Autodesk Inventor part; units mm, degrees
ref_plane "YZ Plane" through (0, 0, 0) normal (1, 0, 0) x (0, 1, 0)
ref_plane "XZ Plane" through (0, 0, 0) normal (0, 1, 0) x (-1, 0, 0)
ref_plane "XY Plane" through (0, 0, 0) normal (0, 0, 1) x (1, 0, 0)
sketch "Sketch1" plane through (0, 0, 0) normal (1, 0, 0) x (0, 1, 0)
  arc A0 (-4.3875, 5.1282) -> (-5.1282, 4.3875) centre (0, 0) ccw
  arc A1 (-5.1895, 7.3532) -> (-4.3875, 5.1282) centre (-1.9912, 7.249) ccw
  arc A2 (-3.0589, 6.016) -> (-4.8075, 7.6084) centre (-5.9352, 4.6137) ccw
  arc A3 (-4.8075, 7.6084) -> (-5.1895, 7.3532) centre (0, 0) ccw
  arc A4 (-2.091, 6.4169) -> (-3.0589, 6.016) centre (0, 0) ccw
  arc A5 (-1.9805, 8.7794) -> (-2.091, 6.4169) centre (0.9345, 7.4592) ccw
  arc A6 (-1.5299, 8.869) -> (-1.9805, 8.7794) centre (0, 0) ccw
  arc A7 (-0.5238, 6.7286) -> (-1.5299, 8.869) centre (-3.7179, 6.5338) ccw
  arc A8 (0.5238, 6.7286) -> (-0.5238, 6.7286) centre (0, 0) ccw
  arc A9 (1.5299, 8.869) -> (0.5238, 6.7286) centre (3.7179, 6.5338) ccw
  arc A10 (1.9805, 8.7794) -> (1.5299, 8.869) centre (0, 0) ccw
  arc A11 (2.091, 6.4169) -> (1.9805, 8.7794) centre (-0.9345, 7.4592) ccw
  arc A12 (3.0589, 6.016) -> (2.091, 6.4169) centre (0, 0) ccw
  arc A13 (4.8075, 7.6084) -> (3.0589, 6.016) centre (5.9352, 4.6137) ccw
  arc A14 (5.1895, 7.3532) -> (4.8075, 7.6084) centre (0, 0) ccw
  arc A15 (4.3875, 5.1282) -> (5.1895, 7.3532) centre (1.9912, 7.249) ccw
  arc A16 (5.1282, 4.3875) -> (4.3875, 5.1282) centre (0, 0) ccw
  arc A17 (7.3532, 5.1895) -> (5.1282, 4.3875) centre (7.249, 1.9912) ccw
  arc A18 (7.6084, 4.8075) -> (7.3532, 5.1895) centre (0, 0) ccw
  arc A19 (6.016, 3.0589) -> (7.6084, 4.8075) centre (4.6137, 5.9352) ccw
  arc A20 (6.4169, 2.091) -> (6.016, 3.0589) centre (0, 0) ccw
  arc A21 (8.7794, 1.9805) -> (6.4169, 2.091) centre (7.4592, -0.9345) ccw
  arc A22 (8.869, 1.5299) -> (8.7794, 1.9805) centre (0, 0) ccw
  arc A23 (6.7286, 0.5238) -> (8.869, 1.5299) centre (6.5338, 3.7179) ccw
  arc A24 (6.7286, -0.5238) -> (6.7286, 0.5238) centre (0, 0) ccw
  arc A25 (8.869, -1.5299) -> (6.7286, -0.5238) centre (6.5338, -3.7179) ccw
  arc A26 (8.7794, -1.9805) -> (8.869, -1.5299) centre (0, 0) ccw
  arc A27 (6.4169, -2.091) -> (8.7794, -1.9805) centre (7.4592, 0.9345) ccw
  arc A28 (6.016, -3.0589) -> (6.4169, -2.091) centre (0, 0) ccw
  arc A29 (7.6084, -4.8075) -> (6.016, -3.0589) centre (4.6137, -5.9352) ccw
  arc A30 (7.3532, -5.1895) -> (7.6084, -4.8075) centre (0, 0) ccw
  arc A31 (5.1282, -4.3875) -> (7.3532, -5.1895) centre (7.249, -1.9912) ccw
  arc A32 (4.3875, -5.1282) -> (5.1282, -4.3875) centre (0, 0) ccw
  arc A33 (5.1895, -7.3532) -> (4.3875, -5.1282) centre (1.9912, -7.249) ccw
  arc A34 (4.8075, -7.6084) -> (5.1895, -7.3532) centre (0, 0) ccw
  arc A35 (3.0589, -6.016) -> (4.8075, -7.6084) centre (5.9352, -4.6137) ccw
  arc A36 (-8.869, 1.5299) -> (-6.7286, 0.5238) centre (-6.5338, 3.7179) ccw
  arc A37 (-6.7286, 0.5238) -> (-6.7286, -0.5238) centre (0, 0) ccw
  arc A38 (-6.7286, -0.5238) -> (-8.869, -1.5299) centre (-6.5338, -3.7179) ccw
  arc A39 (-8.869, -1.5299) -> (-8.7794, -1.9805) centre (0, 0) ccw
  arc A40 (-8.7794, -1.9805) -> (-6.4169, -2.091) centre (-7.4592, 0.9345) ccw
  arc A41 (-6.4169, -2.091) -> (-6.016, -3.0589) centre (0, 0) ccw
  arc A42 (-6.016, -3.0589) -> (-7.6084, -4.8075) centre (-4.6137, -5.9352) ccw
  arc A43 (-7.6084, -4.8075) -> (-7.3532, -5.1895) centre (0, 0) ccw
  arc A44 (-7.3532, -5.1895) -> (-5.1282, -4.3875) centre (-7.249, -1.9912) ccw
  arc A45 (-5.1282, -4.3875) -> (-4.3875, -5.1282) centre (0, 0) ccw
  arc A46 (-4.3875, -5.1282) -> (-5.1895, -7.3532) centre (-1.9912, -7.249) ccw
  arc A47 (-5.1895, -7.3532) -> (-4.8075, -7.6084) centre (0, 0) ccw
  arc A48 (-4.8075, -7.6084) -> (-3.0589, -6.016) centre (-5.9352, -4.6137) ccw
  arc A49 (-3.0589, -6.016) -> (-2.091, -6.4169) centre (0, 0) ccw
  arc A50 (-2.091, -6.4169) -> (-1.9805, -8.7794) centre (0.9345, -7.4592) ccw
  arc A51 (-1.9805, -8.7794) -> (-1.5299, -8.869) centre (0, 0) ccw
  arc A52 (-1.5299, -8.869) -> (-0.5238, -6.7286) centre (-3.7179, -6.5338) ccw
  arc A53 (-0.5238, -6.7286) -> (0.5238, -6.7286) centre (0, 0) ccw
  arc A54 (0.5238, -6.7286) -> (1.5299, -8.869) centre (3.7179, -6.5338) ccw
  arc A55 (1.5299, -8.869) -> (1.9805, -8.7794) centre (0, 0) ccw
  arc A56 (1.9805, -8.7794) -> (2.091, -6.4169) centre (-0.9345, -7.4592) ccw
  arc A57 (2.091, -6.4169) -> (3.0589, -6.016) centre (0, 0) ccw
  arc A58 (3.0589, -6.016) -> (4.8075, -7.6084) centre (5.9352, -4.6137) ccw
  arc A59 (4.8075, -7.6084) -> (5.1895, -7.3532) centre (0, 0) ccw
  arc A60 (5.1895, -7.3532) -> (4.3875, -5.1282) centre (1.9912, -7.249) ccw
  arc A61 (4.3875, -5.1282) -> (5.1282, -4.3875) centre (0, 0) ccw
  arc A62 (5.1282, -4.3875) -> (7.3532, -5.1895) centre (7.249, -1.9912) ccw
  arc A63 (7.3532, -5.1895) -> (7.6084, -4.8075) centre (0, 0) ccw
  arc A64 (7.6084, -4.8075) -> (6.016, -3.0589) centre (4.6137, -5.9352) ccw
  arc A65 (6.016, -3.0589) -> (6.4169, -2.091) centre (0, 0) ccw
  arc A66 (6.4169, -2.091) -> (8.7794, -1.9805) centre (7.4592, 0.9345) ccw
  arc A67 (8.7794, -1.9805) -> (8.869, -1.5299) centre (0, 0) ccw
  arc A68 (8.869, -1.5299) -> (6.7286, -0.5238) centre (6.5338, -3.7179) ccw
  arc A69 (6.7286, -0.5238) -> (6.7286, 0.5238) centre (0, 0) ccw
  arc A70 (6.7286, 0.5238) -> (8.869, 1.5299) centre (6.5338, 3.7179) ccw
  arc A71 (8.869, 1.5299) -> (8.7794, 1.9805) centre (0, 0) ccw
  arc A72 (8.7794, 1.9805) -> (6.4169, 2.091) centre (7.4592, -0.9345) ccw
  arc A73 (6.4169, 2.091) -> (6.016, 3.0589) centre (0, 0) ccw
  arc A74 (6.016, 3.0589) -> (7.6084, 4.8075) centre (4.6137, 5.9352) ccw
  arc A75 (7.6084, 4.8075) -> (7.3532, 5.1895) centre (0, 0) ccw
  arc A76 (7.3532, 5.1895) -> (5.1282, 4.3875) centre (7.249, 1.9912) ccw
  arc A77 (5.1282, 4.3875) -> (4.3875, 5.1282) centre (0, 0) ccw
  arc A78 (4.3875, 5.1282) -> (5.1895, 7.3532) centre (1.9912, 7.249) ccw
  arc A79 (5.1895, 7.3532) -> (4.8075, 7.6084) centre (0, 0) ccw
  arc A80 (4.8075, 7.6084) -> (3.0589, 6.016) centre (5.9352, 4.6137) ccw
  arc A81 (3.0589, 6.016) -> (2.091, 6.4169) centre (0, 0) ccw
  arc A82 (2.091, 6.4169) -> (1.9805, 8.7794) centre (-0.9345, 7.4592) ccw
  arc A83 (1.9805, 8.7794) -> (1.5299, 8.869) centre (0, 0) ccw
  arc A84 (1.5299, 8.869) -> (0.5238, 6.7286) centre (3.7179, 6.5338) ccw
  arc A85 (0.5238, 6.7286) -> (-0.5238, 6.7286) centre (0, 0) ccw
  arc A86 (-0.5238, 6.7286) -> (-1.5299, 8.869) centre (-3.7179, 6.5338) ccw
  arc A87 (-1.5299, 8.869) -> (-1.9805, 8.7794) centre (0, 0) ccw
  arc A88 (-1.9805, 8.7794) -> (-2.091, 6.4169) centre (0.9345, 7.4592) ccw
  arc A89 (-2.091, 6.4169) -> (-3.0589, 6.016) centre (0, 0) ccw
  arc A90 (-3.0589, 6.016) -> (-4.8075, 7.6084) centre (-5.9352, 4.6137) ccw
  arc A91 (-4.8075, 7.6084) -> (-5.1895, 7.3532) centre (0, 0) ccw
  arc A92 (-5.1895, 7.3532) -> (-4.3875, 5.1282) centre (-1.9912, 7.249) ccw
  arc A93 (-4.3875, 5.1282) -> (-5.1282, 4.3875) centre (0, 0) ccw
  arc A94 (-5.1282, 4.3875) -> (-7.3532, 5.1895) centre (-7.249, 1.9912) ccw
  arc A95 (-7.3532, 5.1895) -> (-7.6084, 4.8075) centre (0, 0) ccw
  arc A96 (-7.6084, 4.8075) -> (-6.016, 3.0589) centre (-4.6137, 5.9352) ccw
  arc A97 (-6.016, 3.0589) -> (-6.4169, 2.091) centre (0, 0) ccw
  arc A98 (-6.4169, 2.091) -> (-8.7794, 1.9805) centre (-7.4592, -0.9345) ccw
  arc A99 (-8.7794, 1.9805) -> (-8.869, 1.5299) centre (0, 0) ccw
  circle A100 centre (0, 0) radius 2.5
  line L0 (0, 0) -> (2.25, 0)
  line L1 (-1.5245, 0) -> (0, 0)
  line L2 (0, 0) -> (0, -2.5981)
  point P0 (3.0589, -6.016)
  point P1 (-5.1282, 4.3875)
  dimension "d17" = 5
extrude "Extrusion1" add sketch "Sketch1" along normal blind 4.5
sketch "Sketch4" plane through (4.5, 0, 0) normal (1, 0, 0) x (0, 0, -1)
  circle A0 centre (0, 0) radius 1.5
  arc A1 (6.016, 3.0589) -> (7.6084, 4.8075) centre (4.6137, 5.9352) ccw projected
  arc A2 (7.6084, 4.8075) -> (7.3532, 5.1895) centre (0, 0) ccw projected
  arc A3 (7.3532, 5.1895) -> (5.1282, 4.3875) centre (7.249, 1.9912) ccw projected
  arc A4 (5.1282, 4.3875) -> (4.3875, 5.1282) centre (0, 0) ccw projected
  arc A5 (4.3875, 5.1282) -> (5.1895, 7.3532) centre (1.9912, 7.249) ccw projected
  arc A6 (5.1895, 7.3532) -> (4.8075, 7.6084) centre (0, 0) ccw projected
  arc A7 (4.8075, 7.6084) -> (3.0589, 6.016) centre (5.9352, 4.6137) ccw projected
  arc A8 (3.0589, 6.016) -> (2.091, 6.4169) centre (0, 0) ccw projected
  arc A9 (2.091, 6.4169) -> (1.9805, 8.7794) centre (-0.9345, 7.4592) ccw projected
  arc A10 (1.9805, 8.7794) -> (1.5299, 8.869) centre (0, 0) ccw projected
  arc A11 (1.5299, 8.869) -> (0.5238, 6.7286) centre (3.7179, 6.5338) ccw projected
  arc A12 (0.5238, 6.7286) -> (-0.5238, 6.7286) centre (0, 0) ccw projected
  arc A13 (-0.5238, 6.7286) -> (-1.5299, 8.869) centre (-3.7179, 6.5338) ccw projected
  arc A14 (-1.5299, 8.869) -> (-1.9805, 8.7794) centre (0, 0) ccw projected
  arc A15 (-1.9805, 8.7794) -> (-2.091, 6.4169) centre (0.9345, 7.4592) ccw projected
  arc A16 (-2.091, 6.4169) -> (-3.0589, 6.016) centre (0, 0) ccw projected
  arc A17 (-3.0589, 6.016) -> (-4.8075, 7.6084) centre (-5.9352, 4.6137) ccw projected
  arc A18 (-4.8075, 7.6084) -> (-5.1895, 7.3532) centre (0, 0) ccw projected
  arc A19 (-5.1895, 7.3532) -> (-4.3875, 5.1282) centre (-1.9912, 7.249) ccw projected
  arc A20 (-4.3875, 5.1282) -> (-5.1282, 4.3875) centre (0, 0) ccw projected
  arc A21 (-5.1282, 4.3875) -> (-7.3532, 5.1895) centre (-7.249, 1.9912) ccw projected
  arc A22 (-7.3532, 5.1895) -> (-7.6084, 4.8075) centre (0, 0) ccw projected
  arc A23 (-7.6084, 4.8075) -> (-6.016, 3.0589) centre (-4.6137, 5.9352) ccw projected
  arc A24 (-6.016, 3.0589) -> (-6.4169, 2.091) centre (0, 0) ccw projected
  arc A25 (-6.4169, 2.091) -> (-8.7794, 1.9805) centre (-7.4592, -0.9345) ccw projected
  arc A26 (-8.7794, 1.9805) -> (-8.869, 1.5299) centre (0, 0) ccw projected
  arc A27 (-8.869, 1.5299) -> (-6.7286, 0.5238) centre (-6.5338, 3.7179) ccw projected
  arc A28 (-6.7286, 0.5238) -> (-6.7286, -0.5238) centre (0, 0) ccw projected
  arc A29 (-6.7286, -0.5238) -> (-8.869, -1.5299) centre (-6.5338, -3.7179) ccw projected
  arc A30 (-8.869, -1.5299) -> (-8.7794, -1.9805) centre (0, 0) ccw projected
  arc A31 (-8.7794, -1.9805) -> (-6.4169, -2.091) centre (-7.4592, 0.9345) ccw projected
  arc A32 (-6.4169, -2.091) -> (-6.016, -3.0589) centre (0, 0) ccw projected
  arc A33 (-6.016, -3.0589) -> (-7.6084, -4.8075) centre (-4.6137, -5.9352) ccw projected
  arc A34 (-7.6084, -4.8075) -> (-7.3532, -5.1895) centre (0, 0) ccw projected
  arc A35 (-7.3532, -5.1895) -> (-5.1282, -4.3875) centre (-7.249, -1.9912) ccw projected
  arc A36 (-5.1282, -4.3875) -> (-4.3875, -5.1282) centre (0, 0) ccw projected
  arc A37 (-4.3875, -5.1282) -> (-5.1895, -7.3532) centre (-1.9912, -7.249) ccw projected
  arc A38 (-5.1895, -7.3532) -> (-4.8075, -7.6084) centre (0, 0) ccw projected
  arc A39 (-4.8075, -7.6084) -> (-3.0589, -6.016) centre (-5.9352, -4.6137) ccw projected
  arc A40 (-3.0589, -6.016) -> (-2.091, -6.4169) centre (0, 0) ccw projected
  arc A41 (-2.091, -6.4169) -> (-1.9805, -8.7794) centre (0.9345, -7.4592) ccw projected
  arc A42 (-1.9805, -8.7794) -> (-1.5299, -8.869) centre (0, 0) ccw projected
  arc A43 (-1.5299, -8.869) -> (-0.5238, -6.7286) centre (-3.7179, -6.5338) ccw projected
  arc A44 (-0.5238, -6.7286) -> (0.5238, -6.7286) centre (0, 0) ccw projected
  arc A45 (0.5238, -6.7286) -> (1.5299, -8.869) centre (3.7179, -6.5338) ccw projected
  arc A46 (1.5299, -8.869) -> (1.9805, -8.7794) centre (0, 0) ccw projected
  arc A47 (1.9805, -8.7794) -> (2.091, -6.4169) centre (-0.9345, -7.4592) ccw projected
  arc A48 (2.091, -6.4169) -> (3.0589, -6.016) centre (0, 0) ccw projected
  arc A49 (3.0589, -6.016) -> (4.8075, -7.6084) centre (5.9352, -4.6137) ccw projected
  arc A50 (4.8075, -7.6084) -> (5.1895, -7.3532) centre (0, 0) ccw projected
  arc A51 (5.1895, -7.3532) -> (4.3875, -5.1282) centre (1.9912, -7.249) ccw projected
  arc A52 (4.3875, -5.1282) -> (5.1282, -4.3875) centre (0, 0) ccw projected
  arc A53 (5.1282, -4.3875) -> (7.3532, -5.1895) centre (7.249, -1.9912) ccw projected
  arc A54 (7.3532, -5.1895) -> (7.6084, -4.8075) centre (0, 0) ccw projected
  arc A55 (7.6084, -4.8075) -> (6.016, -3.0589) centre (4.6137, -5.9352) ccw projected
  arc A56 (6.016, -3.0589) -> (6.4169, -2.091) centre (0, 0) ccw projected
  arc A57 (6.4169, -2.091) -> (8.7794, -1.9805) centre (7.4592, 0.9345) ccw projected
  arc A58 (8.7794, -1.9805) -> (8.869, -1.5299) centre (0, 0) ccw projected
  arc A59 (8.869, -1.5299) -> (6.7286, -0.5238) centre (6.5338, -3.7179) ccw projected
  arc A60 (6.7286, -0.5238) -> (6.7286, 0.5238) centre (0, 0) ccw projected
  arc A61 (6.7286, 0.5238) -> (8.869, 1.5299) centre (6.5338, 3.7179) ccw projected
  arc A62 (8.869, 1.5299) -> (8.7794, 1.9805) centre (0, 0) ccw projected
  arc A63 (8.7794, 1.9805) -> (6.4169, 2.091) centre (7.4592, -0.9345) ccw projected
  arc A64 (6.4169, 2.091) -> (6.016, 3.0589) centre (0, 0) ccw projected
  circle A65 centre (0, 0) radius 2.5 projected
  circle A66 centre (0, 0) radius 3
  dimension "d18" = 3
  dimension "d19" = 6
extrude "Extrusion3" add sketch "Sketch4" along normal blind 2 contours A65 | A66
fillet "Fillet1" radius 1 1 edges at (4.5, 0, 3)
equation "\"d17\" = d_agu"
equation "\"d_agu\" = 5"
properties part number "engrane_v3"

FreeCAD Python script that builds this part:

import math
import FreeCAD as App
import Part
import Sketcher

V = App.Vector
Q = App.Units.Quantity


def edges_at(feature, points):
    """Names of the edges that pass closest to the given points."""
    edges = feature.Shape.Edges
    near = lambda p: min(range(len(edges)), key=lambda i: edges[i].distToShape(Part.Vertex(*p))[0])
    return sorted({f"Edge{near(p) + 1}" for p in points})

doc = App.newDocument("Part")
body = doc.addObject("PartDesign::Body", "Body")

sketch1 = body.newObject("Sketcher::SketchObject", "Sketch")
sketch1.AttachmentSupport = (doc.getObject("YZ_Plane"), [""])
sketch1.MapMode = "FlatFace"
sketch1.addGeometry(Part.ArcOfCircle(Part.Circle(V(-1.9912, 7.249, 0), V(0, 0, 1), 3.199997), math.radians(178.133975), math.radians(221.509827)), False)
sketch1.addGeometry(Part.ArcOfCircle(Part.Circle(V(0, 0, 0), V(0, 0, 1), 6.74897), math.radians(130.549084), math.radians(139.450916)), False)
sketch1.addGeometry(Part.ArcOfCircle(Part.Circle(V(-7.249, 1.9912, 0), V(0, 0, 1), 3.200007), math.radians(48.490173), math.radians(91.866025)), False)
sketch1.addGeometry(Part.ArcOfCircle(Part.Circle(V(-0.04567, 0.031366, 0), V(0, 0, 1), 8.944627), math.radians(144.783048), math.radians(147.726127)), False)
sketch1.addGeometry(Part.ArcOfCircle(Part.Circle(V(-4.6137, 5.9352, 0), V(0, 0, 1), 3.19999), math.radians(-159.365369), math.radians(-115.990903)), False)
sketch1.addGeometry(Part.ArcOfCircle(Part.Circle(V(-0.002662, 0.001226, 0), V(0, 0, 1), 6.746081), math.radians(153.047483), math.radians(161.954266)), False)
sketch1.addGeometry(Part.ArcOfCircle(Part.Circle(V(-7.4592, -0.9345, 0), V(0, 0, 1), 3.200006), math.radians(70.990912), math.radians(114.365715)), False)
sketch1.addGeometry(Part.ArcOfCircle(Part.Circle(V(-0.040652, 0.008627, 0), V(0, 0, 1), 8.95846), math.radians(167.284331), math.radians(170.222986)), False)
sketch1.addGeometry(Part.ArcOfCircle(Part.Circle(V(-6.5338, 3.7179, 0), V(0, 0, 1), 3.200079), math.radians(-136.863938), math.radians(-93.490001)), False)
sketch1.addGeometry(Part.ArcOfCircle(Part.Circle(V(0, 0, 0), V(0, 0, 1), 6.748957), math.radians(175.548684), math.radians(184.451316)), False)
sketch1.addGeometry(Part.ArcOfCircle(Part.Circle(V(-6.5338, -3.7179, 0), V(0, 0, 1), 3.200035), math.radians(93.490001), math.radians(136.863938)), False)
sketch1.addGeometry(Part.ArcOfCircle(Part.Circle(V(0.04124, 0.007657, 0), V(0, 0, 1), 9.041927), math.radians(-170.20942), math.radians(-167.297898)), False)
sketch1.addGeometry(Part.ArcOfCircle(Part.Circle(V(-7.4592, 0.9345, 0), V(0, 0, 1), 3.200024), math.radians(-114.365715), math.radians(-70.990912)), False)
sketch1.addGeometry(Part.ArcOfCircle(Part.Circle(V(0.002752, 0.001016, 0), V(0, 0, 1), 6.751923), math.radians(-161.950405), math.radians(-153.051344)), False)
sketch1.addGeometry(Part.ArcOfCircle(Part.Circle(V(-4.6137, -5.9352, 0), V(0, 0, 1), 3.199929), math.radians(115.990903), math.radians(159.365369)), False)
sketch1.addGeometry(Part.ArcOfCircle(Part.Circle(V(0.047034, 0.030566, 0), V(0, 0, 1), 9.056078), math.radians(-147.708013), math.radians(-144.801162)), False)
sketch1.addGeometry(Part.ArcOfCircle(Part.Circle(V(-7.249, -1.9912, 0), V(0, 0, 1), 3.199997), math.radians(-91.866025), math.radians(-48.490173)), False)
sketch1.addGeometry(Part.ArcOfCircle(Part.Circle(V(0, 0, 0), V(0, 0, 1), 6.74897), math.radians(-139.450916), math.radians(-130.549084)), False)
sketch1.addGeometry(Part.ArcOfCircle(Part.Circle(V(-1.9912, -7.249, 0), V(0, 0, 1), 3.200007), math.radians(138.490173), math.radians(181.866025)), False)
sketch1.addGeometry(Part.ArcOfCircle(Part.Circle(V(-0.031366, -0.04567, 0), V(0, 0, 1), 8.944627), math.radians(-125.216952), math.radians(-122.273873)), False)
sketch1.addGeometry(Part.ArcOfCircle(Part.Circle(V(-5.9352, -4.6137, 0), V(0, 0, 1), 3.19999), math.radians(-69.365369), math.radians(-25.990903)), False)
sketch1.addGeometry(Part.ArcOfCircle(Part.Circle(V(-0.001226, -0.002662, 0), V(0, 0, 1), 6.746081), math.radians(-116.952517), math.radians(-108.045734)), False)
sketch1.addGeometry(Part.ArcOfCircle(Part.Circle(V(0.9345, -7.4592, 0), V(0, 0, 1), 3.200006), math.radians(160.990912), math.radians(204.365715)), False)
sketch1.addGeometry(Part.ArcOfCircle(Part.Circle(V(-0.008627, -0.040652, 0), V(0, 0, 1), 8.95846), math.radians(-102.715669), math.radians(-99.777014)), False)
sketch1.addGeometry(Part.ArcOfCircle(Part.Circle(V(-3.7179, -6.5338, 0), V(0, 0, 1), 3.200079), math.radians(-46.863938), math.radians(-3.490001)), False)
sketch1.addGeometry(Part.ArcOfCircle(Part.Circle(V(0, 0, 0), V(0, 0, 1), 6.748957), math.radians(-94.451316), math.radians(-85.548684)), False)
sketch1.addGeometry(Part.ArcOfCircle(Part.Circle(V(3.7179, -6.5338, 0), V(0, 0, 1), 3.200035), math.radians(-176.509999), math.radians(-133.136062)), False)
sketch1.addGeometry(Part.ArcOfCircle(Part.Circle(V(-0.007657, 0.04124, 0), V(0, 0, 1), 9.041927), math.radians(-80.20942), math.radians(-77.297898)), False)
sketch1.addGeometry(Part.ArcOfCircle(Part.Circle(V(-0.9345, -7.4592, 0), V(0, 0, 1), 3.200024), math.radians(-24.365715), math.radians(19.009088)), False)
sketch1.addGeometry(Part.ArcOfCircle(Part.Circle(V(-0.001016, 0.002752, 0), V(0, 0, 1), 6.751923), math.radians(-71.950405), math.radians(-63.051344)), False)
sketch1.addGeometry(Part.ArcOfCircle(Part.Circle(V(5.9352, -4.6137, 0), V(0, 0, 1), 3.199929), math.radians(-154.009097), math.radians(-110.634631)), False)
sketch1.addGeometry(Part.ArcOfCircle(Part.Circle(V(-0.030566, 0.047034, 0), V(0, 0, 1), 9.056078), math.radians(-57.708013), math.radians(-54.801162)), False)
sketch1.addGeometry(Part.ArcOfCircle(Part.Circle(V(1.9912, -7.249, 0), V(0, 0, 1), 3.199997), math.radians(-1.866025), math.radians(41.509827)), False)
sketch1.addGeometry(Part.ArcOfCircle(Part.Circle(V(0, 0, 0), V(0, 0, 1), 6.74897), math.radians(-49.450916), math.radians(-40.549084)), False)
sketch1.addGeometry(Part.ArcOfCircle(Part.Circle(V(7.249, -1.9912, 0), V(0, 0, 1), 3.200007), math.radians(-131.509827), math.radians(-88.133975)), False)
sketch1.addGeometry(Part.ArcOfCircle(Part.Circle(V(0.04567, -0.031366, 0), V(0, 0, 1), 8.944627), math.radians(-35.216952), math.radians(-32.273873)), False)
sketch1.addGeometry(Part.ArcOfCircle(Part.Circle(V(4.6137, -5.9352, 0), V(0, 0, 1), 3.19999), math.radians(20.634631), math.radians(64.009097)), False)
sketch1.addGeometry(Part.ArcOfCircle(Part.Circle(V(0.002662, -0.001226, 0), V(0, 0, 1), 6.746081), math.radians(-26.952517), math.radians(-18.045734)), False)
sketch1.addGeometry(Part.ArcOfCircle(Part.Circle(V(7.4592, 0.9345, 0), V(0, 0, 1), 3.200006), math.radians(-109.009088), math.radians(-65.634285)), False)
sketch1.addGeometry(Part.ArcOfCircle(Part.Circle(V(0.040652, -0.008627, 0), V(0, 0, 1), 8.95846), math.radians(-12.715669), math.radians(-9.777014)), False)
sketch1.addGeometry(Part.ArcOfCircle(Part.Circle(V(6.5338, -3.7179, 0), V(0, 0, 1), 3.200079), math.radians(43.136062), math.radians(86.509999)), False)
sketch1.addGeometry(Part.ArcOfCircle(Part.Circle(V(0, 0, 0), V(0, 0, 1), 6.748957), math.radians(-4.451316), math.radians(4.451316)), False)
sketch1.addGeometry(Part.ArcOfCircle(Part.Circle(V(6.5338, 3.7179, 0), V(0, 0, 1), 3.200035), math.radians(-86.509999), math.radians(-43.136062)), False)
sketch1.addGeometry(Part.ArcOfCircle(Part.Circle(V(-0.04124, -0.007657, 0), V(0, 0, 1), 9.041927), math.radians(9.79058), math.radians(12.702102)), False)
sketch1.addGeometry(Part.ArcOfCircle(Part.Circle(V(7.4592, -0.9345, 0), V(0, 0, 1), 3.200024), math.radians(65.634285), math.radians(109.009088)), False)
sketch1.addGeometry(Part.ArcOfCircle(Part.Circle(V(-0.002752, -0.001016, 0), V(0, 0, 1), 6.751923), math.radians(18.049595), math.radians(26.948656)), False)
sketch1.addGeometry(Part.ArcOfCircle(Part.Circle(V(4.6137, 5.9352, 0), V(0, 0, 1), 3.199929), math.radians(-64.009097), math.radians(-20.634631)), False)
sketch1.addGeometry(Part.ArcOfCircle(Part.Circle(V(-0.047034, -0.030566, 0), V(0, 0, 1), 9.056078), math.radians(32.291987), math.radians(35.198838)), False)
sketch1.addGeometry(Part.ArcOfCircle(Part.Circle(V(7.249, 1.9912, 0), V(0, 0, 1), 3.199997), math.radians(88.133975), math.radians(131.509827)), False)
sketch1.addGeometry(Part.ArcOfCircle(Part.Circle(V(0, 0, 0), V(0, 0, 1), 6.74897), math.radians(40.549084), math.radians(49.450916)), False)
sketch1.addGeometry(Part.ArcOfCircle(Part.Circle(V(1.9912, 7.249, 0), V(0, 0, 1), 3.200007), math.radians(-41.509827), math.radians(1.866025)), False)
sketch1.addGeometry(Part.ArcOfCircle(Part.Circle(V(0.031366, 0.04567, 0), V(0, 0, 1), 8.944627), math.radians(54.783048), math.radians(57.726127)), False)
sketch1.addGeometry(Part.ArcOfCircle(Part.Circle(V(5.9352, 4.6137, 0), V(0, 0, 1), 3.19999), math.radians(110.634631), math.radians(154.009097)), False)
sketch1.addGeometry(Part.ArcOfCircle(Part.Circle(V(0.001226, 0.002662, 0), V(0, 0, 1), 6.746081), math.radians(63.047483), math.radians(71.954266)), False)
sketch1.addGeometry(Part.ArcOfCircle(Part.Circle(V(-0.9345, 7.4592, 0), V(0, 0, 1), 3.200006), math.radians(-19.009088), math.radians(24.365715)), False)
sketch1.addGeometry(Part.ArcOfCircle(Part.Circle(V(0.008627, 0.040652, 0), V(0, 0, 1), 8.95846), math.radians(77.284331), math.radians(80.222986)), False)
sketch1.addGeometry(Part.ArcOfCircle(Part.Circle(V(3.7179, 6.5338, 0), V(0, 0, 1), 3.200079), math.radians(133.136062), math.radians(176.509999)), False)
sketch1.addGeometry(Part.ArcOfCircle(Part.Circle(V(0, 0, 0), V(0, 0, 1), 6.748957), math.radians(85.548684), math.radians(94.451316)), False)
sketch1.addGeometry(Part.ArcOfCircle(Part.Circle(V(-3.7179, 6.5338, 0), V(0, 0, 1), 3.200035), math.radians(3.490001), math.radians(46.863938)), False)
sketch1.addGeometry(Part.ArcOfCircle(Part.Circle(V(0.007657, -0.04124, 0), V(0, 0, 1), 9.041927), math.radians(99.79058), math.radians(102.702102)), False)
sketch1.addGeometry(Part.ArcOfCircle(Part.Circle(V(0.9345, 7.4592, 0), V(0, 0, 1), 3.200024), math.radians(155.634285), math.radians(199.009088)), False)
sketch1.addGeometry(Part.ArcOfCircle(Part.Circle(V(0.001016, -0.002752, 0), V(0, 0, 1), 6.751923), math.radians(108.049595), math.radians(116.948656)), False)
sketch1.addGeometry(Part.ArcOfCircle(Part.Circle(V(-5.9352, 4.6137, 0), V(0, 0, 1), 3.199929), math.radians(25.990903), math.radians(69.365369)), False)
sketch1.addGeometry(Part.ArcOfCircle(Part.Circle(V(0.030566, -0.047034, 0), V(0, 0, 1), 9.056078), math.radians(122.291987), math.radians(125.198838)), False)
sketch1.addGeometry(Part.Circle(V(0, 0, 0), V(0, 0, 1), 2.5), False)
sketch1.addConstraint(Sketcher.Constraint("Coincident", 0, 2, 1, 1))
sketch1.addConstraint(Sketcher.Constraint("Coincident", 1, 2, 2, 1))
sketch1.addConstraint(Sketcher.Constraint("Coincident", 2, 2, 3, 1))
sketch1.addConstraint(Sketcher.Constraint("Coincident", 3, 2, 4, 1))
sketch1.addConstraint(Sketcher.Constraint("Coincident", 4, 2, 5, 1))
sketch1.addConstraint(Sketcher.Constraint("Coincident", 5, 2, 6, 1))
sketch1.addConstraint(Sketcher.Constraint("Coincident", 6, 2, 7, 1))
sketch1.addConstraint(Sketcher.Constraint("Coincident", 7, 2, 8, 1))
sketch1.addConstraint(Sketcher.Constraint("Coincident", 8, 2, 9, 1))
sketch1.addConstraint(Sketcher.Constraint("Coincident", 9, 2, 10, 1))
sketch1.addConstraint(Sketcher.Constraint("Coincident", 10, 2, 11, 1))
sketch1.addConstraint(Sketcher.Constraint("Coincident", 11, 2, 12, 1))
sketch1.addConstraint(Sketcher.Constraint("Coincident", 12, 2, 13, 1))
sketch1.addConstraint(Sketcher.Constraint("Coincident", 13, 2, 14, 1))
sketch1.addConstraint(Sketcher.Constraint("Coincident", 14, 2, 15, 1))
sketch1.addConstraint(Sketcher.Constraint("Coincident", 15, 2, 16, 1))
sketch1.addConstraint(Sketcher.Constraint("Coincident", 16, 2, 17, 1))
sketch1.addConstraint(Sketcher.Constraint("Coincident", 17, 2, 18, 1))
sketch1.addConstraint(Sketcher.Constraint("Coincident", 18, 2, 19, 1))
sketch1.addConstraint(Sketcher.Constraint("Coincident", 19, 2, 20, 1))
sketch1.addConstraint(Sketcher.Constraint("Coincident", 20, 2, 21, 1))
sketch1.addConstraint(Sketcher.Constraint("Coincident", 21, 2, 22, 1))
sketch1.addConstraint(Sketcher.Constraint("Coincident", 22, 2, 23, 1))
sketch1.addConstraint(Sketcher.Constraint("Coincident", 23, 2, 24, 1))
sketch1.addConstraint(Sketcher.Constraint("Coincident", 24, 2, 25, 1))
sketch1.addConstraint(Sketcher.Constraint("Coincident", 25, 2, 26, 1))
sketch1.addConstraint(Sketcher.Constraint("Coincident", 26, 2, 27, 1))
sketch1.addConstraint(Sketcher.Constraint("Coincident", 27, 2, 28, 1))
sketch1.addConstraint(Sketcher.Constraint("Coincident", 28, 2, 29, 1))
sketch1.addConstraint(Sketcher.Constraint("Coincident", 29, 2, 30, 1))
sketch1.addConstraint(Sketcher.Constraint("Coincident", 30, 2, 31, 1))
sketch1.addConstraint(Sketcher.Constraint("Coincident", 31, 2, 32, 1))
sketch1.addConstraint(Sketcher.Constraint("Coincident", 32, 2, 33, 1))
sketch1.addConstraint(Sketcher.Constraint("Coincident", 33, 2, 34, 1))
sketch1.addConstraint(Sketcher.Constraint("Coincident", 34, 2, 35, 1))
sketch1.addConstraint(Sketcher.Constraint("Coincident", 35, 2, 36, 1))
sketch1.addConstraint(Sketcher.Constraint("Coincident", 36, 2, 37, 1))
sketch1.addConstraint(Sketcher.Constraint("Coincident", 37, 2, 38, 1))
sketch1.addConstraint(Sketcher.Constraint("Coincident", 38, 2, 39, 1))
sketch1.addConstraint(Sketcher.Constraint("Coincident", 39, 2, 40, 1))
sketch1.addConstraint(Sketcher.Constraint("Coincident", 40, 2, 41, 1))
sketch1.addConstraint(Sketcher.Constraint("Coincident", 41, 2, 42, 1))
sketch1.addConstraint(Sketcher.Constraint("Coincident", 42, 2, 43, 1))
sketch1.addConstraint(Sketcher.Constraint("Coincident", 43, 2, 44, 1))
sketch1.addConstraint(Sketcher.Constraint("Coincident", 44, 2, 45, 1))
sketch1.addConstraint(Sketcher.Constraint("Coincident", 45, 2, 46, 1))
sketch1.addConstraint(Sketcher.Constraint("Coincident", 46, 2, 47, 1))
sketch1.addConstraint(Sketcher.Constraint("Coincident", 47, 2, 48, 1))
sketch1.addConstraint(Sketcher.Constraint("Coincident", 48, 2, 49, 1))
sketch1.addConstraint(Sketcher.Constraint("Coincident", 49, 2, 50, 1))
sketch1.addConstraint(Sketcher.Constraint("Coincident", 50, 2, 51, 1))
sketch1.addConstraint(Sketcher.Constraint("Coincident", 51, 2, 52, 1))
sketch1.addConstraint(Sketcher.Constraint("Coincident", 52, 2, 53, 1))
sketch1.addConstraint(Sketcher.Constraint("Coincident", 53, 2, 54, 1))
sketch1.addConstraint(Sketcher.Constraint("Coincident", 54, 2, 55, 1))
sketch1.addConstraint(Sketcher.Constraint("Coincident", 55, 2, 56, 1))
sketch1.addConstraint(Sketcher.Constraint("Coincident", 56, 2, 57, 1))
sketch1.addConstraint(Sketcher.Constraint("Coincident", 57, 2, 58, 1))
sketch1.addConstraint(Sketcher.Constraint("Coincident", 58, 2, 59, 1))
sketch1.addConstraint(Sketcher.Constraint("Coincident", 59, 2, 60, 1))
sketch1.addConstraint(Sketcher.Constraint("Coincident", 60, 2, 61, 1))
sketch1.addConstraint(Sketcher.Constraint("Coincident", 61, 2, 62, 1))
sketch1.addConstraint(Sketcher.Constraint("Coincident", 62, 2, 63, 1))
sketch1.addConstraint(Sketcher.Constraint("Coincident", 63, 2, 0, 1))
sketch1.addConstraint(Sketcher.Constraint("Coincident", 1, 3, -1, 1))
sketch1.addConstraint(Sketcher.Constraint("Coincident", 9, 3, -1, 1))
sketch1.addConstraint(Sketcher.Constraint("Coincident", 17, 3, -1, 1))
sketch1.addConstraint(Sketcher.Constraint("Coincident", 25, 3, -1, 1))
sketch1.addConstraint(Sketcher.Constraint("Coincident", 33, 3, -1, 1))
sketch1.addConstraint(Sketcher.Constraint("Coincident", 41, 3, -1, 1))
sketch1.addConstraint(Sketcher.Constraint("Coincident", 49, 3, -1, 1))
sketch1.addConstraint(Sketcher.Constraint("Coincident", 57, 3, -1, 1))
sketch1.addConstraint(Sketcher.Constraint("Coincident", 64, 3, -1, 1))
sketch1.addConstraint(Sketcher.Constraint("Diameter", 64, Q("5 mm")))
sketch1.addConstraint(Sketcher.Constraint("Radius", 0, Q("3.2 mm")))
sketch1.addConstraint(Sketcher.Constraint("Radius", 2, Q("3.2 mm")))
sketch1.addConstraint(Sketcher.Constraint("Radius", 4, Q("3.2 mm")))
sketch1.addConstraint(Sketcher.Constraint("Radius", 6, Q("3.2 mm")))
sketch1.addConstraint(Sketcher.Constraint("Radius", 8, Q("3.2 mm")))
sketch1.addConstraint(Sketcher.Constraint("Radius", 10, Q("3.2 mm")))
sketch1.addConstraint(Sketcher.Constraint("Radius", 12, Q("3.2 mm")))
sketch1.addConstraint(Sketcher.Constraint("Radius", 14, Q("3.2 mm")))
sketch1.addConstraint(Sketcher.Constraint("Radius", 16, Q("3.2 mm")))
sketch1.addConstraint(Sketcher.Constraint("Radius", 18, Q("3.2 mm")))
sketch1.addConstraint(Sketcher.Constraint("Radius", 20, Q("3.2 mm")))
sketch1.addConstraint(Sketcher.Constraint("Radius", 22, Q("3.2 mm")))
sketch1.addConstraint(Sketcher.Constraint("Radius", 24, Q("3.2 mm")))
sketch1.addConstraint(Sketcher.Constraint("Radius", 26, Q("3.2 mm")))
sketch1.addConstraint(Sketcher.Constraint("Radius", 28, Q("3.2 mm")))
sketch1.addConstraint(Sketcher.Constraint("Radius", 30, Q("3.2 mm")))
sketch1.addConstraint(Sketcher.Constraint("Radius", 32, Q("3.2 mm")))
sketch1.addConstraint(Sketcher.Constraint("Radius", 34, Q("3.2 mm")))
sketch1.addConstraint(Sketcher.Constraint("Radius", 36, Q("3.2 mm")))
sketch1.addConstraint(Sketcher.Constraint("Radius", 38, Q("3.2 mm")))
sketch1.addConstraint(Sketcher.Constraint("Radius", 40, Q("3.2 mm")))
sketch1.addConstraint(Sketcher.Constraint("Radius", 42, Q("3.2 mm")))
sketch1.addConstraint(Sketcher.Constraint("Radius", 44, Q("3.2 mm")))
sketch1.addConstraint(Sketcher.Constraint("Radius", 46, Q("3.2 mm")))
sketch1.addConstraint(Sketcher.Constraint("Radius", 48, Q("3.2 mm")))
sketch1.addConstraint(Sketcher.Constraint("Radius", 50, Q("3.2 mm")))
sketch1.addConstraint(Sketcher.Constraint("Radius", 52, Q("3.2 mm")))
sketch1.addConstraint(Sketcher.Constraint("Radius", 54, Q("3.2 mm")))
sketch1.addConstraint(Sketcher.Constraint("Radius", 56, Q("3.2 mm")))
sketch1.addConstraint(Sketcher.Constraint("Radius", 58, Q("3.2 mm")))
sketch1.addConstraint(Sketcher.Constraint("Radius", 60, Q("3.2 mm")))
sketch1.addConstraint(Sketcher.Constraint("Radius", 62, Q("3.2 mm")))
sketch1.addConstraint(Sketcher.Constraint("Radius", 1, Q("6.749 mm")))
sketch1.addConstraint(Sketcher.Constraint("Radius", 5, Q("6.746 mm")))
sketch1.addConstraint(Sketcher.Constraint("Radius", 9, Q("6.749 mm")))
sketch1.addConstraint(Sketcher.Constraint("Radius", 11, Q("9.042 mm")))
sketch1.addConstraint(Sketcher.Constraint("Radius", 13, Q("6.752 mm")))
sketch1.addConstraint(Sketcher.Constraint("Radius", 15, Q("9.056 mm")))
sketch1.addConstraint(Sketcher.Constraint("Radius", 17, Q("6.749 mm")))
sketch1.addConstraint(Sketcher.Constraint("Radius", 21, Q("6.746 mm")))
sketch1.addConstraint(Sketcher.Constraint("Radius", 25, Q("6.749 mm")))
sketch1.addConstraint(Sketcher.Constraint("Radius", 27, Q("9.042 mm")))
sketch1.addConstraint(Sketcher.Constraint("Radius", 29, Q("6.752 mm")))
sketch1.addConstraint(Sketcher.Constraint("Radius", 31, Q("9.056 mm")))
sketch1.addConstraint(Sketcher.Constraint("Radius", 33, Q("6.749 mm")))
sketch1.addConstraint(Sketcher.Constraint("Radius", 37, Q("6.746 mm")))
sketch1.addConstraint(Sketcher.Constraint("Radius", 41, Q("6.749 mm")))
sketch1.addConstraint(Sketcher.Constraint("Radius", 43, Q("9.042 mm")))
sketch1.addConstraint(Sketcher.Constraint("Radius", 45, Q("6.752 mm")))
sketch1.addConstraint(Sketcher.Constraint("Radius", 47, Q("9.056 mm")))
sketch1.addConstraint(Sketcher.Constraint("Radius", 49, Q("6.749 mm")))
sketch1.addConstraint(Sketcher.Constraint("Radius", 53, Q("6.746 mm")))
sketch1.addConstraint(Sketcher.Constraint("Radius", 57, Q("6.749 mm")))
sketch1.addConstraint(Sketcher.Constraint("Radius", 59, Q("9.042 mm")))
sketch1.addConstraint(Sketcher.Constraint("Radius", 61, Q("6.752 mm")))
sketch1.addConstraint(Sketcher.Constraint("Radius", 63, Q("9.056 mm")))
sketch1.addConstraint(Sketcher.Constraint("Radius", 3, Q("8.9446 mm")))
sketch1.addConstraint(Sketcher.Constraint("Radius", 7, Q("8.9585 mm")))
sketch1.addConstraint(Sketcher.Constraint("Radius", 19, Q("8.9446 mm")))
sketch1.addConstraint(Sketcher.Constraint("Radius", 23, Q("8.9585 mm")))
sketch1.addConstraint(Sketcher.Constraint("Radius", 35, Q("8.9446 mm")))
sketch1.addConstraint(Sketcher.Constraint("Radius", 39, Q("8.9585 mm")))
sketch1.addConstraint(Sketcher.Constraint("Radius", 51, Q("8.9446 mm")))
sketch1.addConstraint(Sketcher.Constraint("Radius", 55, Q("8.9585 mm")))
sketch1.addConstraint(Sketcher.Constraint("DistanceY", -1, 1, 7, 2, Q("1.53 mm")))
sketch1.addConstraint(Sketcher.Constraint("DistanceY", 10, 2, -1, 1, Q("1.53 mm")))
sketch1.addConstraint(Sketcher.Constraint("DistanceX", 23, 2, -1, 1, Q("1.53 mm")))
sketch1.addConstraint(Sketcher.Constraint("DistanceX", -1, 1, 26, 2, Q("1.53 mm")))
sketch1.addConstraint(Sketcher.Constraint("DistanceY", 39, 2, -1, 1, Q("1.53 mm")))
sketch1.addConstraint(Sketcher.Constraint("DistanceY", -1, 1, 42, 2, Q("1.53 mm")))
sketch1.addConstraint(Sketcher.Constraint("DistanceX", -1, 1, 55, 2, Q("1.53 mm")))
sketch1.addConstraint(Sketcher.Constraint("DistanceX", 58, 2, -1, 1, Q("1.53 mm")))
sketch1.addConstraint(Sketcher.Constraint("DistanceY", -1, 1, 0, 3, Q("7.249 mm")))
sketch1.addConstraint(Sketcher.Constraint("DistanceX", 2, 3, -1, 1, Q("7.249 mm")))
sketch1.addConstraint(Sketcher.Constraint("DistanceY", -1, 1, 8, 3, Q("3.718 mm")))
sketch1.addConstraint(Sketcher.Constraint("DistanceY", 10, 3, -1, 1, Q("3.718 mm")))
sketch1.addConstraint(Sketcher.Constraint("DistanceY", -1, 1, 13, 3, Q("0.001 mm")))
sketch1.addConstraint(Sketcher.Constraint("DistanceX", -1, 1, 15, 3, Q("0.047 mm")))
sketch1.addConstraint(Sketcher.Constraint("DistanceX", 16, 3, -1, 1, Q("7.249 mm")))
sketch1.addConstraint(Sketcher.Constraint("DistanceY", 18, 3, -1, 1, Q("7.249 mm")))
sketch1.addConstraint(Sketcher.Constraint("DistanceX", 24, 3, -1, 1, Q("3.718 mm")))
sketch1.addConstraint(Sketcher.Constraint("DistanceX", -1, 1, 26, 3, Q("3.718 mm")))
sketch1.addConstraint(Sketcher.Constraint("DistanceX", 29, 3, -1, 1, Q("0.001 mm")))
sketch1.addConstraint(Sketcher.Constraint("DistanceY", -1, 1, 31, 3, Q("0.047 mm")))
sketch1.addConstraint(Sketcher.Constraint("DistanceY", 32, 3, -1, 1, Q("7.249 mm")))
sketch1.addConstraint(Sketcher.Constraint("DistanceX", -1, 1, 34, 3, Q("7.249 mm")))
sketch1.addConstraint(Sketcher.Constraint("DistanceY", 40, 3, -1, 1, Q("3.718 mm")))
sketch1.addConstraint(Sketcher.Constraint("DistanceY", -1, 1, 42, 3, Q("3.718 mm")))
sketch1.addConstraint(Sketcher.Constraint("DistanceY", 45, 3, -1, 1, Q("0.001 mm")))
sketch1.addConstraint(Sketcher.Constraint("DistanceX", 47, 3, -1, 1, Q("0.047 mm")))
sketch1.addConstraint(Sketcher.Constraint("DistanceX", -1, 1, 48, 3, Q("7.249 mm")))
sketch1.addConstraint(Sketcher.Constraint("DistanceY", -1, 1, 50, 3, Q("7.249 mm")))
sketch1.addConstraint(Sketcher.Constraint("DistanceX", -1, 1, 56, 3, Q("3.718 mm")))
sketch1.addConstraint(Sketcher.Constraint("DistanceX", 58, 3, -1, 1, Q("3.718 mm")))
sketch1.addConstraint(Sketcher.Constraint("DistanceX", -1, 1, 61, 3, Q("0.001 mm")))
sketch1.addConstraint(Sketcher.Constraint("DistanceY", 63, 3, -1, 1, Q("0.047 mm")))
sketch1.addConstraint(Sketcher.Constraint("DistanceX", 4, 2, -1, 1, Q("6.016 mm")))
sketch1.addConstraint(Sketcher.Constraint("DistanceX", 5, 2, -1, 1, Q("6.417 mm")))
sketch1.addConstraint(Sketcher.Constraint("DistanceY", -1, 1, 5, 2, Q("2.091 mm")))
sketch1.addConstraint(Sketcher.Constraint("DistanceX", 7, 2, -1, 1, Q("8.869 mm")))
sketch1.addConstraint(Sketcher.Constraint("DistanceX", 10, 2, -1, 1, Q("8.869 mm")))
sketch1.addConstraint(Sketcher.Constraint("DistanceX", 12, 2, -1, 1, Q("6.417 mm")))
sketch1.addConstraint(Sketcher.Constraint("DistanceY", 12, 2, -1, 1, Q("2.091 mm")))
sketch1.addConstraint(Sketcher.Constraint("DistanceX", 13, 2, -1, 1, Q("6.016 mm")))
sketch1.addConstraint(Sketcher.Constraint("DistanceY", 20, 2, -1, 1, Q("6.016 mm")))
sketch1.addConstraint(Sketcher.Constraint("DistanceX", 21, 2, -1, 1, Q("2.091 mm")))
sketch1.addConstraint(Sketcher.Constraint("DistanceY", 21, 2, -1, 1, Q("6.417 mm")))
sketch1.addConstraint(Sketcher.Constraint("DistanceY", 23, 2, -1, 1, Q("8.869 mm")))
sketch1.addConstraint(Sketcher.Constraint("DistanceY", 26, 2, -1, 1, Q("8.869 mm")))
sketch1.addConstraint(Sketcher.Constraint("DistanceX", -1, 1, 28, 2, Q("2.091 mm")))
sketch1.addConstraint(Sketcher.Constraint("DistanceY", 28, 2, -1, 1, Q("6.417 mm")))
sketch1.addConstraint(Sketcher.Constraint("DistanceX", -1, 1, 29, 2, Q("3.059 mm")))
sketch1.addConstraint(Sketcher.Constraint("DistanceX", -1, 1, 36, 2, Q("6.016 mm")))
sketch1.addConstraint(Sketcher.Constraint("DistanceX", -1, 1, 37, 2, Q("6.417 mm")))
sketch1.addConstraint(Sketcher.Constraint("DistanceY", 37, 2, -1, 1, Q("2.091 mm")))
sketch1.addConstraint(Sketcher.Constraint("DistanceX", -1, 1, 39, 2, Q("8.869 mm")))
sketch1.addConstraint(Sketcher.Constraint("DistanceX", -1, 1, 42, 2, Q("8.869 mm")))
sketch1.addConstraint(Sketcher.Constraint("DistanceX", -1, 1, 44, 2, Q("6.417 mm")))
sketch1.addConstraint(Sketcher.Constraint("DistanceY", -1, 1, 44, 2, Q("2.091 mm")))
sketch1.addConstraint(Sketcher.Constraint("DistanceX", -1, 1, 45, 2, Q("6.016 mm")))
sketch1.addConstraint(Sketcher.Constraint("DistanceY", -1, 1, 52, 2, Q("6.016 mm")))
sketch1.addConstraint(Sketcher.Constraint("DistanceX", -1, 1, 53, 2, Q("2.091 mm")))
sketch1.addConstraint(Sketcher.Constraint("DistanceY", -1, 1, 53, 2, Q("6.417 mm")))
sketch1.addConstraint(Sketcher.Constraint("DistanceY", -1, 1, 55, 2, Q("8.869 mm")))
sketch1.addConstraint(Sketcher.Constraint("DistanceY", -1, 1, 58, 2, Q("8.869 mm")))
sketch1.addConstraint(Sketcher.Constraint("DistanceX", 60, 2, -1, 1, Q("2.091 mm")))
sketch1.addConstraint(Sketcher.Constraint("DistanceY", -1, 1, 60, 2, Q("6.417 mm")))
sketch1.addConstraint(Sketcher.Constraint("DistanceX", 61, 2, -1, 1, Q("3.059 mm")))
sketch1.addConstraint(Sketcher.Constraint("DistanceX", 0, 3, -1, 1, Q("1.9912 mm")))
sketch1.addConstraint(Sketcher.Constraint("DistanceY", -1, 1, 2, 3, Q("1.9912 mm")))
sketch1.addConstraint(Sketcher.Constraint("DistanceX", 3, 3, -1, 1, Q("0.0457 mm")))
sketch1.addConstraint(Sketcher.Constraint("DistanceY", -1, 1, 3, 3, Q("0.0314 mm")))
sketch1.addConstraint(Sketcher.Constraint("DistanceX", 4, 3, -1, 1, Q("4.6137 mm")))
sketch1.addConstraint(Sketcher.Constraint("DistanceY", -1, 1, 4, 3, Q("5.9352 mm")))
sketch1.addConstraint(Sketcher.Constraint("DistanceX", 6, 3, -1, 1, Q("7.4592 mm")))
sketch1.addConstraint(Sketcher.Constraint("DistanceX", 7, 3, -1, 1, Q("0.0407 mm")))
sketch1.addConstraint(Sketcher.Constraint("DistanceX", -1, 1, 11, 3, Q("0.0412 mm")))
sketch1.addConstraint(Sketcher.Constraint("DistanceX", 12, 3, -1, 1, Q("7.4592 mm")))
sketch1.addConstraint(Sketcher.Constraint("DistanceX", 14, 3, -1, 1, Q("4.6137 mm")))
sketch1.addConstraint(Sketcher.Constraint("DistanceY", -1, 1, 15, 3, Q("0.0306 mm")))
sketch1.addConstraint(Sketcher.Constraint("DistanceY", 16, 3, -1, 1, Q("1.9912 mm")))
sketch1.addConstraint(Sketcher.Constraint("DistanceX", 18, 3, -1, 1, Q("1.9912 mm")))
sketch1.addConstraint(Sketcher.Constraint("DistanceX", 19, 3, -1, 1, Q("0.0314 mm")))
sketch1.addConstraint(Sketcher.Constraint("DistanceY", 19, 3, -1, 1, Q("0.0457 mm")))
sketch1.addConstraint(Sketcher.Constraint("DistanceX", 20, 3, -1, 1, Q("5.9352 mm")))
sketch1.addConstraint(Sketcher.Constraint("DistanceY", 20, 3, -1, 1, Q("4.6137 mm")))
sketch1.addConstraint(Sketcher.Constraint("DistanceX", -1, 1, 22, 3, Q("0.9345 mm")))
sketch1.addConstraint(Sketcher.Constraint("DistanceX", 23, 3, -1, 1, Q("0.0086 mm")))
sketch1.addConstraint(Sketcher.Constraint("DistanceX", 27, 3, -1, 1, Q("0.0077 mm")))
sketch1.addConstraint(Sketcher.Constraint("DistanceX", 28, 3, -1, 1, Q("0.9345 mm")))
sketch1.addConstraint(Sketcher.Constraint("DistanceX", -1, 1, 30, 3, Q("5.9352 mm")))
sketch1.addConstraint(Sketcher.Constraint("DistanceX", 31, 3, -1, 1, Q("0.0306 mm")))
sketch1.addConstraint(Sketcher.Constraint("DistanceX", -1, 1, 32, 3, Q("1.9912 mm")))
sketch1.addConstraint(Sketcher.Constraint("DistanceY", 34, 3, -1, 1, Q("1.9912 mm")))
sketch1.addConstraint(Sketcher.Constraint("DistanceX", -1, 1, 35, 3, Q("0.0457 mm")))
sketch1.addConstraint(Sketcher.Constraint("DistanceY", 35, 3, -1, 1, Q("0.0314 mm")))
sketch1.addConstraint(Sketcher.Constraint("DistanceX", -1, 1, 36, 3, Q("4.6137 mm")))
sketch1.addConstraint(Sketcher.Constraint("DistanceY", 36, 3, -1, 1, Q("5.9352 mm")))
sketch1.addConstraint(Sketcher.Constraint("DistanceX", -1, 1, 38, 3, Q("7.4592 mm")))
sketch1.addConstraint(Sketcher.Constraint("DistanceX", -1, 1, 39, 3, Q("0.0407 mm")))
sketch1.addConstraint(Sketcher.Constraint("DistanceX", 43, 3, -1, 1, Q("0.0412 mm")))
sketch1.addConstraint(Sketcher.Constraint("DistanceX", -1, 1, 44, 3, Q("7.4592 mm")))
sketch1.addConstraint(Sketcher.Constraint("DistanceX", -1, 1, 46, 3, Q("4.6137 mm")))
sketch1.addConstraint(Sketcher.Constraint("DistanceY", 47, 3, -1, 1, Q("0.0306 mm")))
sketch1.addConstraint(Sketcher.Constraint("DistanceY", -1, 1, 48, 3, Q("1.9912 mm")))
sketch1.addConstraint(Sketcher.Constraint("DistanceX", -1, 1, 50, 3, Q("1.9912 mm")))
sketch1.addConstraint(Sketcher.Constraint("DistanceX", -1, 1, 51, 3, Q("0.0314 mm")))
sketch1.addConstraint(Sketcher.Constraint("DistanceY", -1, 1, 51, 3, Q("0.0457 mm")))
sketch1.addConstraint(Sketcher.Constraint("DistanceX", -1, 1, 52, 3, Q("5.9352 mm")))
sketch1.addConstraint(Sketcher.Constraint("DistanceY", -1, 1, 52, 3, Q("4.6137 mm")))
sketch1.addConstraint(Sketcher.Constraint("DistanceX", 54, 3, -1, 1, Q("0.9345 mm")))
sketch1.addConstraint(Sketcher.Constraint("DistanceX", -1, 1, 55, 3, Q("0.0086 mm")))
sketch1.addConstraint(Sketcher.Constraint("DistanceX", -1, 1, 59, 3, Q("0.0077 mm")))
sketch1.addConstraint(Sketcher.Constraint("DistanceX", -1, 1, 60, 3, Q("0.9345 mm")))
sketch1.addConstraint(Sketcher.Constraint("DistanceX", 62, 3, -1, 1, Q("5.9352 mm")))
sketch1.addConstraint(Sketcher.Constraint("DistanceX", -1, 1, 63, 3, Q("0.0306 mm")))
pad1 = body.newObject("PartDesign::Pad", "Pad")
pad1.Profile = sketch1
pad1.Length = 4.5

sketch2 = body.newObject("Sketcher::SketchObject", "Sketch001")
sketch2.AttachmentSupport = (doc.getObject("YZ_Plane"), [""])
sketch2.MapMode = "FlatFace"
sketch2.AttachmentOffset = App.Placement(V(0, 0, 4.5), App.Rotation())
sketch2.addGeometry(Part.Circle(V(0, 0, 0), V(0, 0, 1), 3), False)
sketch2.addGeometry(Part.Circle(V(0, 0, 0), V(0, 0, 1), 1.5), False)
sketch2.addConstraint(Sketcher.Constraint("Coincident", 0, 3, -1, 1))
sketch2.addConstraint(Sketcher.Constraint("Coincident", 1, 3, -1, 1))
sketch2.addConstraint(Sketcher.Constraint("Diameter", 0, Q("6 mm")))
sketch2.addConstraint(Sketcher.Constraint("Diameter", 1, Q("3 mm")))
pad2 = body.newObject("PartDesign::Pad", "Pad001")
pad2.Profile = sketch2
pad2.Length = 2
doc.recompute()

fillet = body.newObject("PartDesign::Fillet", "Fillet")
fillet.Base = (pad2, edges_at(pad2, [(4.5, 0, 3)]))
fillet.Radius = 1

doc.recompute()
